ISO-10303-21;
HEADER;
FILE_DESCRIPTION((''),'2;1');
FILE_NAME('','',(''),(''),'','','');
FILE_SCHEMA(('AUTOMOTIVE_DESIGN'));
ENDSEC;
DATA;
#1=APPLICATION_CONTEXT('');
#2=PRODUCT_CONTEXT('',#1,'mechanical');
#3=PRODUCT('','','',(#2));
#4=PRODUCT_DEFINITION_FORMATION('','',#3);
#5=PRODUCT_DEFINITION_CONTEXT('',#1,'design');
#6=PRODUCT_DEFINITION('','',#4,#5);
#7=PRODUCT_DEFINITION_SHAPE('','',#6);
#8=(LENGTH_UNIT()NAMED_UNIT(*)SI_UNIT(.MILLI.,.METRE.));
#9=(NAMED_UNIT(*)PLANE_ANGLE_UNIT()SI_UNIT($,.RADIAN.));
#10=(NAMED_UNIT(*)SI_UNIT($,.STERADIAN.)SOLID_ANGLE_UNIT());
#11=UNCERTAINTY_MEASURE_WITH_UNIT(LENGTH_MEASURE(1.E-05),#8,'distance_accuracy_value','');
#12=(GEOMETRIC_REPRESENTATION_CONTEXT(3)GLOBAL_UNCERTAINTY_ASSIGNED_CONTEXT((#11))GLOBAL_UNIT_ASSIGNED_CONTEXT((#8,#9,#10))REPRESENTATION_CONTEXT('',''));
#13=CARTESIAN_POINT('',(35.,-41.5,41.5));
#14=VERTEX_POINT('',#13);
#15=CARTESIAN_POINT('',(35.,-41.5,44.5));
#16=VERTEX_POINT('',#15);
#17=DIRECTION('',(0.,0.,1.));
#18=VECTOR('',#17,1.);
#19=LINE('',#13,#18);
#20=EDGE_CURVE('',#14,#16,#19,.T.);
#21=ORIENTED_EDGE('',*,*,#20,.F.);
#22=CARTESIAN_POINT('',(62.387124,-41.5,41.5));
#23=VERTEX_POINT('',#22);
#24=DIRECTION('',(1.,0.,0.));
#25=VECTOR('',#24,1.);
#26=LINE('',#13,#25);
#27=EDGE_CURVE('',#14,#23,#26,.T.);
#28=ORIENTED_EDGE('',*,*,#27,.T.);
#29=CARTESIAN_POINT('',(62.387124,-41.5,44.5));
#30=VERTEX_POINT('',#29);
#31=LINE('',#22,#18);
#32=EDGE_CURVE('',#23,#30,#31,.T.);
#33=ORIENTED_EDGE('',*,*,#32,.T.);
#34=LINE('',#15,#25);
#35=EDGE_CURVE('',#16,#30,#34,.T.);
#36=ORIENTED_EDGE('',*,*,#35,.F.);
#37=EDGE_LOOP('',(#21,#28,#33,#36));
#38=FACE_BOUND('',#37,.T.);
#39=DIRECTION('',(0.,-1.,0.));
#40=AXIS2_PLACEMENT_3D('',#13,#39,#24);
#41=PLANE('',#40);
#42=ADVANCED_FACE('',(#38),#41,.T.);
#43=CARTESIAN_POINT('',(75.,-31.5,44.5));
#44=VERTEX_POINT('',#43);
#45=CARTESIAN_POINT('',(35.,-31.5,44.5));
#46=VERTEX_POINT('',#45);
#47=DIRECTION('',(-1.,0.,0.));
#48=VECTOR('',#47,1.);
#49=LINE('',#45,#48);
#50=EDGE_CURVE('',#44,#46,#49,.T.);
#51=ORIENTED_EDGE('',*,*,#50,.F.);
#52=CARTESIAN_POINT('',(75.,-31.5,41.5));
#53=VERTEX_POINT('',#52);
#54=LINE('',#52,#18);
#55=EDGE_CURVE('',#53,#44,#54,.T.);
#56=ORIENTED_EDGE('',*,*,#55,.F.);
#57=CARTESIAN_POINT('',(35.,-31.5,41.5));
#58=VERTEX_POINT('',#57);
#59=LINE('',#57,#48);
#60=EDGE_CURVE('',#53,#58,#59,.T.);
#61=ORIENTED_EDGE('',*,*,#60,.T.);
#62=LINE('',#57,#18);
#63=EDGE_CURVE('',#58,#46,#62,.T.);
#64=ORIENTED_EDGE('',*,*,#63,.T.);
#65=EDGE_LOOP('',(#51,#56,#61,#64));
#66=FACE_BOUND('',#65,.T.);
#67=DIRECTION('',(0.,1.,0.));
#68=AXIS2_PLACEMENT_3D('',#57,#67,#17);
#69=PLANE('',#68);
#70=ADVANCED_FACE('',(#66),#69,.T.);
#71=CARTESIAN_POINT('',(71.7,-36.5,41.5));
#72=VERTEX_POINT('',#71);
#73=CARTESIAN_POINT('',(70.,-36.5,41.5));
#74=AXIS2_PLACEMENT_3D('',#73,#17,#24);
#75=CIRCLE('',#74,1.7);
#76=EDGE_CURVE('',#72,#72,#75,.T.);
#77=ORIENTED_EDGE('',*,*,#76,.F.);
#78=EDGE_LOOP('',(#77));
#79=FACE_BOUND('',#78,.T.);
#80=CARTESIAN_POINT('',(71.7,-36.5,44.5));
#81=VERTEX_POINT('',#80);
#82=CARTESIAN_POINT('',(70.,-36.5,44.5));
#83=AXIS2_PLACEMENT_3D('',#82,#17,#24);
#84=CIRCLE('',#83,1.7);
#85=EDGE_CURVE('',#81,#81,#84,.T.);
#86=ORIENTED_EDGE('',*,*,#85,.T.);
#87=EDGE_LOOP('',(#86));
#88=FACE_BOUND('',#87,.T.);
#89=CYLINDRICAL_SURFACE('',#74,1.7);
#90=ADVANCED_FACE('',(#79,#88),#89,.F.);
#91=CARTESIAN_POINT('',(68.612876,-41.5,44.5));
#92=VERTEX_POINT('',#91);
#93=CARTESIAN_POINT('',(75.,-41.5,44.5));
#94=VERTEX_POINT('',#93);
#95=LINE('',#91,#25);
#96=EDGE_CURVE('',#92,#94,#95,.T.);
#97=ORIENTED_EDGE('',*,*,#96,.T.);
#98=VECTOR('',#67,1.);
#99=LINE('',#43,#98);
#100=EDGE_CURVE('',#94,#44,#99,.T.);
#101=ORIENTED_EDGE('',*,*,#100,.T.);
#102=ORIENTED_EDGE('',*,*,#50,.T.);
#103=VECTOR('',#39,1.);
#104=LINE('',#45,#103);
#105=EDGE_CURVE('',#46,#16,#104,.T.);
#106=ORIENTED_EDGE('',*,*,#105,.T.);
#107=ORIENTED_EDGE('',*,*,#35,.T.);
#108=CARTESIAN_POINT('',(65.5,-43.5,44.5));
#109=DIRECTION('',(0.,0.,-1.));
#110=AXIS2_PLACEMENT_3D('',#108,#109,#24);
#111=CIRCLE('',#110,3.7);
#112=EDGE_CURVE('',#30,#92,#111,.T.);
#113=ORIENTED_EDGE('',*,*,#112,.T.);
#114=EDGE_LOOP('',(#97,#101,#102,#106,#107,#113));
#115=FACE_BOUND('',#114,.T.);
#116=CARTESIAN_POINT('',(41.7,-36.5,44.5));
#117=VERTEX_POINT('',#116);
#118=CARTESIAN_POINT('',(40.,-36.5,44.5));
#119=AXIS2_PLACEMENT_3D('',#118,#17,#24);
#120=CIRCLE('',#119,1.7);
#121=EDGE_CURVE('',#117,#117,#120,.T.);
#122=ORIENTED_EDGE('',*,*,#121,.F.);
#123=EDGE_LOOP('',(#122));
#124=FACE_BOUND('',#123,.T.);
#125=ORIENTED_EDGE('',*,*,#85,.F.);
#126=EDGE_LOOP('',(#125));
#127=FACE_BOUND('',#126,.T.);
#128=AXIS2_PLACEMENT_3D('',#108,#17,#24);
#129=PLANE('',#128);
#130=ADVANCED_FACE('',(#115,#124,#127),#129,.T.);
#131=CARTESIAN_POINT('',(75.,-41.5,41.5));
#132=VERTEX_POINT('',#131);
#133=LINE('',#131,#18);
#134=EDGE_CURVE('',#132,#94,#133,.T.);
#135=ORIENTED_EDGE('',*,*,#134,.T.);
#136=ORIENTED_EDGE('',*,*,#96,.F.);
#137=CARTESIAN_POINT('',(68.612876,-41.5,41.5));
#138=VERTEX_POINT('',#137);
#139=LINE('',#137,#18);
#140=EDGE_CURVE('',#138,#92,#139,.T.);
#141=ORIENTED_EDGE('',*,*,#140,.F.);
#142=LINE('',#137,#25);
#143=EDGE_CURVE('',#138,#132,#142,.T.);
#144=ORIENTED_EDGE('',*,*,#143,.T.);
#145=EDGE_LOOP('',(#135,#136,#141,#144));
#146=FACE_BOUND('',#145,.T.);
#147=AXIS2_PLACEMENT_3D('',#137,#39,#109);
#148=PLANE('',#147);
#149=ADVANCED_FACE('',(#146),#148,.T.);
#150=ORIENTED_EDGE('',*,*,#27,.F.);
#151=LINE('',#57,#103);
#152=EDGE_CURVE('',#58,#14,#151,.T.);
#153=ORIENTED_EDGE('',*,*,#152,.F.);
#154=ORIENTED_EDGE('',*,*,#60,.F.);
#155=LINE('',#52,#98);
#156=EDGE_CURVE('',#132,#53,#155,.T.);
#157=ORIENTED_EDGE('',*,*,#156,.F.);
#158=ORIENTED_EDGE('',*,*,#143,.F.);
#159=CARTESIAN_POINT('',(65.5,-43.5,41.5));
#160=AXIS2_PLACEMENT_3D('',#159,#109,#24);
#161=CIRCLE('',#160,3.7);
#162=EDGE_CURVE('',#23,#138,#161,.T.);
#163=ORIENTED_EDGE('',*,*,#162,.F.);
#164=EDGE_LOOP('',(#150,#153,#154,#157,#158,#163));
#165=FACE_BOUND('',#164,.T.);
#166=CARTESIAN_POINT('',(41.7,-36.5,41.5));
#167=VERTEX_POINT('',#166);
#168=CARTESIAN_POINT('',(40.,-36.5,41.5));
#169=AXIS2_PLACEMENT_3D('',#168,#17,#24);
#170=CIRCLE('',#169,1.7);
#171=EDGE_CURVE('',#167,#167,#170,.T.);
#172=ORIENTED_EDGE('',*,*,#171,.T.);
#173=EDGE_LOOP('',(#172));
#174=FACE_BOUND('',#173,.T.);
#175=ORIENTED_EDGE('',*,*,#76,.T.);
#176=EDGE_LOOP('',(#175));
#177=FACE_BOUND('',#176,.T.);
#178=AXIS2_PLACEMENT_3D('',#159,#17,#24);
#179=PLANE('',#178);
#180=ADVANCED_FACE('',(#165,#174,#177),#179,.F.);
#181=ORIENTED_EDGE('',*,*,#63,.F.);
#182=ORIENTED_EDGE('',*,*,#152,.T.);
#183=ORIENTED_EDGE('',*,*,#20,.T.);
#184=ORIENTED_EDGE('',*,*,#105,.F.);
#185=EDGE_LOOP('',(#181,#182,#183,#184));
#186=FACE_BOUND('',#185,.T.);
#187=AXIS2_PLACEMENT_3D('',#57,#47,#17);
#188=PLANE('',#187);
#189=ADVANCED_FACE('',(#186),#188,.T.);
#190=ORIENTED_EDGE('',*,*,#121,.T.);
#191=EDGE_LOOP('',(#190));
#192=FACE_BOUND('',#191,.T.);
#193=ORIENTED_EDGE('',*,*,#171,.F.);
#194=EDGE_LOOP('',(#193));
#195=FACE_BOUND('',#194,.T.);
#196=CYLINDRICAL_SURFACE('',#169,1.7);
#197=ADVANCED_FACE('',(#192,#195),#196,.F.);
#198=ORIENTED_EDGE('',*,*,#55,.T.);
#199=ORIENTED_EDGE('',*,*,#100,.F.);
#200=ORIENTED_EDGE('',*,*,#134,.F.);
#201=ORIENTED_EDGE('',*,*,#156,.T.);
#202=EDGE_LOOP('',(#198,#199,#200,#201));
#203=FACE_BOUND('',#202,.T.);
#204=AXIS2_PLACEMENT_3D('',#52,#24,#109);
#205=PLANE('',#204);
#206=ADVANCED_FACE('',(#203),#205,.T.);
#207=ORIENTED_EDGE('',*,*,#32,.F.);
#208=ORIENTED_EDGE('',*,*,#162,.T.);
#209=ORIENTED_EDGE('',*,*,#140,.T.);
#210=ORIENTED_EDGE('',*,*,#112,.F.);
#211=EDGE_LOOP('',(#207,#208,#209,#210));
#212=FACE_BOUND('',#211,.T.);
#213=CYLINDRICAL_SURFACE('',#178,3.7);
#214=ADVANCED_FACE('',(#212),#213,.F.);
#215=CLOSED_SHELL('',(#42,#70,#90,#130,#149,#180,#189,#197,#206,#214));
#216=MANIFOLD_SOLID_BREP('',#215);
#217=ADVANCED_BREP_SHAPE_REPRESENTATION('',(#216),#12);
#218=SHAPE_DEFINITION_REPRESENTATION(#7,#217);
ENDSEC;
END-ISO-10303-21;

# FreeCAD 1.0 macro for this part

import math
import FreeCAD as App
import Part
import Sketcher
Q = App.Units.Quantity

doc = App.newDocument("Part")
body = doc.addObject("PartDesign::Body", "Body")

sketch1 = body.newObject("Sketcher::SketchObject", "Sketch")
sketch1.AttachmentSupport = (doc.getObject("XY_Plane"), [""])
sketch1.MapMode = "FlatFace"
sketch1.AttachmentOffset = App.Placement(App.Vector(0, 0, 44.5), App.Rotation())
sketch1.addGeometry([
    Part.LineSegment(App.Vector(75, -31.5, 0), App.Vector(35, -31.5, 0)),
    Part.LineSegment(App.Vector(35, -31.5, 0), App.Vector(35, -41.5, 0)),
    Part.LineSegment(App.Vector(35, -41.5, 0), App.Vector(62.4, -41.5, 0)),
    Part.ArcOfCircle(Part.Circle(App.Vector(65.5, -43.5, 0), App.Vector(0, 0, 1), 3.7), math.radians(33), math.radians(147)),
    Part.LineSegment(App.Vector(68.6, -41.5, 0), App.Vector(75, -41.5, 0)),
    Part.LineSegment(App.Vector(75, -41.5, 0), App.Vector(75, -31.5, 0)),
    Part.Circle(App.Vector(70, -36.5, 0), App.Vector(0, 0, 1), 1.7),
    Part.Circle(App.Vector(40, -36.5, 0), App.Vector(0, 0, 1), 1.7),
], False)
sketch1.addConstraint([
    Sketcher.Constraint("Coincident", 0, 2, 1, 1),
    Sketcher.Constraint("Coincident", 1, 2, 2, 1),
    Sketcher.Constraint("Coincident", 2, 2, 3, 2),
    Sketcher.Constraint("Coincident", 3, 1, 4, 1),
    Sketcher.Constraint("Coincident", 4, 2, 5, 1),
    Sketcher.Constraint("Coincident", 5, 2, 0, 1),
    Sketcher.Constraint("Horizontal", 0),
    Sketcher.Constraint("Vertical", 1),
    Sketcher.Constraint("Horizontal", 2),
    Sketcher.Constraint("Horizontal", 4),
    Sketcher.Constraint("Vertical", 5),
    Sketcher.Constraint("Equal", 6, 7),
    Sketcher.Constraint("Horizontal", 6, 3, 7, 3),
    Sketcher.Constraint("Horizontal", 2, 2, 3, 1),
    Sketcher.Constraint("Diameter", 6, Q("3.4 mm")),
    Sketcher.Constraint("Radius", 3, Q("3.7 mm")),
    Sketcher.Constraint("DistanceX", 0, 2, 0, 1, Q("40 mm")),
    Sketcher.Constraint("DistanceY", 1, 2, 1, 1, Q("10 mm")),
    Sketcher.Constraint("DistanceX", -1, 1, 6, 3, Q("70 mm")),
    Sketcher.Constraint("DistanceX", -1, 1, 7, 3, Q("40 mm")),
    Sketcher.Constraint("DistanceX", -1, 1, 0, 2, Q("35 mm")),
    Sketcher.Constraint("DistanceY", 3, 3, 6, 3, Q("7 mm")),
    Sketcher.Constraint("DistanceY", 7, 3, 0, 2, Q("5 mm")),
    Sketcher.Constraint("DistanceX", -1, 1, 3, 3, Q("65.5 mm")),
    Sketcher.Constraint("DistanceY", 3, 3, -1, 1, Q("43.5 mm")),
])
pad1 = body.newObject("PartDesign::Pad", "Pad")
pad1.Profile = sketch1
pad1.Length = 3
pad1.Reversed = True

doc.recompute()
